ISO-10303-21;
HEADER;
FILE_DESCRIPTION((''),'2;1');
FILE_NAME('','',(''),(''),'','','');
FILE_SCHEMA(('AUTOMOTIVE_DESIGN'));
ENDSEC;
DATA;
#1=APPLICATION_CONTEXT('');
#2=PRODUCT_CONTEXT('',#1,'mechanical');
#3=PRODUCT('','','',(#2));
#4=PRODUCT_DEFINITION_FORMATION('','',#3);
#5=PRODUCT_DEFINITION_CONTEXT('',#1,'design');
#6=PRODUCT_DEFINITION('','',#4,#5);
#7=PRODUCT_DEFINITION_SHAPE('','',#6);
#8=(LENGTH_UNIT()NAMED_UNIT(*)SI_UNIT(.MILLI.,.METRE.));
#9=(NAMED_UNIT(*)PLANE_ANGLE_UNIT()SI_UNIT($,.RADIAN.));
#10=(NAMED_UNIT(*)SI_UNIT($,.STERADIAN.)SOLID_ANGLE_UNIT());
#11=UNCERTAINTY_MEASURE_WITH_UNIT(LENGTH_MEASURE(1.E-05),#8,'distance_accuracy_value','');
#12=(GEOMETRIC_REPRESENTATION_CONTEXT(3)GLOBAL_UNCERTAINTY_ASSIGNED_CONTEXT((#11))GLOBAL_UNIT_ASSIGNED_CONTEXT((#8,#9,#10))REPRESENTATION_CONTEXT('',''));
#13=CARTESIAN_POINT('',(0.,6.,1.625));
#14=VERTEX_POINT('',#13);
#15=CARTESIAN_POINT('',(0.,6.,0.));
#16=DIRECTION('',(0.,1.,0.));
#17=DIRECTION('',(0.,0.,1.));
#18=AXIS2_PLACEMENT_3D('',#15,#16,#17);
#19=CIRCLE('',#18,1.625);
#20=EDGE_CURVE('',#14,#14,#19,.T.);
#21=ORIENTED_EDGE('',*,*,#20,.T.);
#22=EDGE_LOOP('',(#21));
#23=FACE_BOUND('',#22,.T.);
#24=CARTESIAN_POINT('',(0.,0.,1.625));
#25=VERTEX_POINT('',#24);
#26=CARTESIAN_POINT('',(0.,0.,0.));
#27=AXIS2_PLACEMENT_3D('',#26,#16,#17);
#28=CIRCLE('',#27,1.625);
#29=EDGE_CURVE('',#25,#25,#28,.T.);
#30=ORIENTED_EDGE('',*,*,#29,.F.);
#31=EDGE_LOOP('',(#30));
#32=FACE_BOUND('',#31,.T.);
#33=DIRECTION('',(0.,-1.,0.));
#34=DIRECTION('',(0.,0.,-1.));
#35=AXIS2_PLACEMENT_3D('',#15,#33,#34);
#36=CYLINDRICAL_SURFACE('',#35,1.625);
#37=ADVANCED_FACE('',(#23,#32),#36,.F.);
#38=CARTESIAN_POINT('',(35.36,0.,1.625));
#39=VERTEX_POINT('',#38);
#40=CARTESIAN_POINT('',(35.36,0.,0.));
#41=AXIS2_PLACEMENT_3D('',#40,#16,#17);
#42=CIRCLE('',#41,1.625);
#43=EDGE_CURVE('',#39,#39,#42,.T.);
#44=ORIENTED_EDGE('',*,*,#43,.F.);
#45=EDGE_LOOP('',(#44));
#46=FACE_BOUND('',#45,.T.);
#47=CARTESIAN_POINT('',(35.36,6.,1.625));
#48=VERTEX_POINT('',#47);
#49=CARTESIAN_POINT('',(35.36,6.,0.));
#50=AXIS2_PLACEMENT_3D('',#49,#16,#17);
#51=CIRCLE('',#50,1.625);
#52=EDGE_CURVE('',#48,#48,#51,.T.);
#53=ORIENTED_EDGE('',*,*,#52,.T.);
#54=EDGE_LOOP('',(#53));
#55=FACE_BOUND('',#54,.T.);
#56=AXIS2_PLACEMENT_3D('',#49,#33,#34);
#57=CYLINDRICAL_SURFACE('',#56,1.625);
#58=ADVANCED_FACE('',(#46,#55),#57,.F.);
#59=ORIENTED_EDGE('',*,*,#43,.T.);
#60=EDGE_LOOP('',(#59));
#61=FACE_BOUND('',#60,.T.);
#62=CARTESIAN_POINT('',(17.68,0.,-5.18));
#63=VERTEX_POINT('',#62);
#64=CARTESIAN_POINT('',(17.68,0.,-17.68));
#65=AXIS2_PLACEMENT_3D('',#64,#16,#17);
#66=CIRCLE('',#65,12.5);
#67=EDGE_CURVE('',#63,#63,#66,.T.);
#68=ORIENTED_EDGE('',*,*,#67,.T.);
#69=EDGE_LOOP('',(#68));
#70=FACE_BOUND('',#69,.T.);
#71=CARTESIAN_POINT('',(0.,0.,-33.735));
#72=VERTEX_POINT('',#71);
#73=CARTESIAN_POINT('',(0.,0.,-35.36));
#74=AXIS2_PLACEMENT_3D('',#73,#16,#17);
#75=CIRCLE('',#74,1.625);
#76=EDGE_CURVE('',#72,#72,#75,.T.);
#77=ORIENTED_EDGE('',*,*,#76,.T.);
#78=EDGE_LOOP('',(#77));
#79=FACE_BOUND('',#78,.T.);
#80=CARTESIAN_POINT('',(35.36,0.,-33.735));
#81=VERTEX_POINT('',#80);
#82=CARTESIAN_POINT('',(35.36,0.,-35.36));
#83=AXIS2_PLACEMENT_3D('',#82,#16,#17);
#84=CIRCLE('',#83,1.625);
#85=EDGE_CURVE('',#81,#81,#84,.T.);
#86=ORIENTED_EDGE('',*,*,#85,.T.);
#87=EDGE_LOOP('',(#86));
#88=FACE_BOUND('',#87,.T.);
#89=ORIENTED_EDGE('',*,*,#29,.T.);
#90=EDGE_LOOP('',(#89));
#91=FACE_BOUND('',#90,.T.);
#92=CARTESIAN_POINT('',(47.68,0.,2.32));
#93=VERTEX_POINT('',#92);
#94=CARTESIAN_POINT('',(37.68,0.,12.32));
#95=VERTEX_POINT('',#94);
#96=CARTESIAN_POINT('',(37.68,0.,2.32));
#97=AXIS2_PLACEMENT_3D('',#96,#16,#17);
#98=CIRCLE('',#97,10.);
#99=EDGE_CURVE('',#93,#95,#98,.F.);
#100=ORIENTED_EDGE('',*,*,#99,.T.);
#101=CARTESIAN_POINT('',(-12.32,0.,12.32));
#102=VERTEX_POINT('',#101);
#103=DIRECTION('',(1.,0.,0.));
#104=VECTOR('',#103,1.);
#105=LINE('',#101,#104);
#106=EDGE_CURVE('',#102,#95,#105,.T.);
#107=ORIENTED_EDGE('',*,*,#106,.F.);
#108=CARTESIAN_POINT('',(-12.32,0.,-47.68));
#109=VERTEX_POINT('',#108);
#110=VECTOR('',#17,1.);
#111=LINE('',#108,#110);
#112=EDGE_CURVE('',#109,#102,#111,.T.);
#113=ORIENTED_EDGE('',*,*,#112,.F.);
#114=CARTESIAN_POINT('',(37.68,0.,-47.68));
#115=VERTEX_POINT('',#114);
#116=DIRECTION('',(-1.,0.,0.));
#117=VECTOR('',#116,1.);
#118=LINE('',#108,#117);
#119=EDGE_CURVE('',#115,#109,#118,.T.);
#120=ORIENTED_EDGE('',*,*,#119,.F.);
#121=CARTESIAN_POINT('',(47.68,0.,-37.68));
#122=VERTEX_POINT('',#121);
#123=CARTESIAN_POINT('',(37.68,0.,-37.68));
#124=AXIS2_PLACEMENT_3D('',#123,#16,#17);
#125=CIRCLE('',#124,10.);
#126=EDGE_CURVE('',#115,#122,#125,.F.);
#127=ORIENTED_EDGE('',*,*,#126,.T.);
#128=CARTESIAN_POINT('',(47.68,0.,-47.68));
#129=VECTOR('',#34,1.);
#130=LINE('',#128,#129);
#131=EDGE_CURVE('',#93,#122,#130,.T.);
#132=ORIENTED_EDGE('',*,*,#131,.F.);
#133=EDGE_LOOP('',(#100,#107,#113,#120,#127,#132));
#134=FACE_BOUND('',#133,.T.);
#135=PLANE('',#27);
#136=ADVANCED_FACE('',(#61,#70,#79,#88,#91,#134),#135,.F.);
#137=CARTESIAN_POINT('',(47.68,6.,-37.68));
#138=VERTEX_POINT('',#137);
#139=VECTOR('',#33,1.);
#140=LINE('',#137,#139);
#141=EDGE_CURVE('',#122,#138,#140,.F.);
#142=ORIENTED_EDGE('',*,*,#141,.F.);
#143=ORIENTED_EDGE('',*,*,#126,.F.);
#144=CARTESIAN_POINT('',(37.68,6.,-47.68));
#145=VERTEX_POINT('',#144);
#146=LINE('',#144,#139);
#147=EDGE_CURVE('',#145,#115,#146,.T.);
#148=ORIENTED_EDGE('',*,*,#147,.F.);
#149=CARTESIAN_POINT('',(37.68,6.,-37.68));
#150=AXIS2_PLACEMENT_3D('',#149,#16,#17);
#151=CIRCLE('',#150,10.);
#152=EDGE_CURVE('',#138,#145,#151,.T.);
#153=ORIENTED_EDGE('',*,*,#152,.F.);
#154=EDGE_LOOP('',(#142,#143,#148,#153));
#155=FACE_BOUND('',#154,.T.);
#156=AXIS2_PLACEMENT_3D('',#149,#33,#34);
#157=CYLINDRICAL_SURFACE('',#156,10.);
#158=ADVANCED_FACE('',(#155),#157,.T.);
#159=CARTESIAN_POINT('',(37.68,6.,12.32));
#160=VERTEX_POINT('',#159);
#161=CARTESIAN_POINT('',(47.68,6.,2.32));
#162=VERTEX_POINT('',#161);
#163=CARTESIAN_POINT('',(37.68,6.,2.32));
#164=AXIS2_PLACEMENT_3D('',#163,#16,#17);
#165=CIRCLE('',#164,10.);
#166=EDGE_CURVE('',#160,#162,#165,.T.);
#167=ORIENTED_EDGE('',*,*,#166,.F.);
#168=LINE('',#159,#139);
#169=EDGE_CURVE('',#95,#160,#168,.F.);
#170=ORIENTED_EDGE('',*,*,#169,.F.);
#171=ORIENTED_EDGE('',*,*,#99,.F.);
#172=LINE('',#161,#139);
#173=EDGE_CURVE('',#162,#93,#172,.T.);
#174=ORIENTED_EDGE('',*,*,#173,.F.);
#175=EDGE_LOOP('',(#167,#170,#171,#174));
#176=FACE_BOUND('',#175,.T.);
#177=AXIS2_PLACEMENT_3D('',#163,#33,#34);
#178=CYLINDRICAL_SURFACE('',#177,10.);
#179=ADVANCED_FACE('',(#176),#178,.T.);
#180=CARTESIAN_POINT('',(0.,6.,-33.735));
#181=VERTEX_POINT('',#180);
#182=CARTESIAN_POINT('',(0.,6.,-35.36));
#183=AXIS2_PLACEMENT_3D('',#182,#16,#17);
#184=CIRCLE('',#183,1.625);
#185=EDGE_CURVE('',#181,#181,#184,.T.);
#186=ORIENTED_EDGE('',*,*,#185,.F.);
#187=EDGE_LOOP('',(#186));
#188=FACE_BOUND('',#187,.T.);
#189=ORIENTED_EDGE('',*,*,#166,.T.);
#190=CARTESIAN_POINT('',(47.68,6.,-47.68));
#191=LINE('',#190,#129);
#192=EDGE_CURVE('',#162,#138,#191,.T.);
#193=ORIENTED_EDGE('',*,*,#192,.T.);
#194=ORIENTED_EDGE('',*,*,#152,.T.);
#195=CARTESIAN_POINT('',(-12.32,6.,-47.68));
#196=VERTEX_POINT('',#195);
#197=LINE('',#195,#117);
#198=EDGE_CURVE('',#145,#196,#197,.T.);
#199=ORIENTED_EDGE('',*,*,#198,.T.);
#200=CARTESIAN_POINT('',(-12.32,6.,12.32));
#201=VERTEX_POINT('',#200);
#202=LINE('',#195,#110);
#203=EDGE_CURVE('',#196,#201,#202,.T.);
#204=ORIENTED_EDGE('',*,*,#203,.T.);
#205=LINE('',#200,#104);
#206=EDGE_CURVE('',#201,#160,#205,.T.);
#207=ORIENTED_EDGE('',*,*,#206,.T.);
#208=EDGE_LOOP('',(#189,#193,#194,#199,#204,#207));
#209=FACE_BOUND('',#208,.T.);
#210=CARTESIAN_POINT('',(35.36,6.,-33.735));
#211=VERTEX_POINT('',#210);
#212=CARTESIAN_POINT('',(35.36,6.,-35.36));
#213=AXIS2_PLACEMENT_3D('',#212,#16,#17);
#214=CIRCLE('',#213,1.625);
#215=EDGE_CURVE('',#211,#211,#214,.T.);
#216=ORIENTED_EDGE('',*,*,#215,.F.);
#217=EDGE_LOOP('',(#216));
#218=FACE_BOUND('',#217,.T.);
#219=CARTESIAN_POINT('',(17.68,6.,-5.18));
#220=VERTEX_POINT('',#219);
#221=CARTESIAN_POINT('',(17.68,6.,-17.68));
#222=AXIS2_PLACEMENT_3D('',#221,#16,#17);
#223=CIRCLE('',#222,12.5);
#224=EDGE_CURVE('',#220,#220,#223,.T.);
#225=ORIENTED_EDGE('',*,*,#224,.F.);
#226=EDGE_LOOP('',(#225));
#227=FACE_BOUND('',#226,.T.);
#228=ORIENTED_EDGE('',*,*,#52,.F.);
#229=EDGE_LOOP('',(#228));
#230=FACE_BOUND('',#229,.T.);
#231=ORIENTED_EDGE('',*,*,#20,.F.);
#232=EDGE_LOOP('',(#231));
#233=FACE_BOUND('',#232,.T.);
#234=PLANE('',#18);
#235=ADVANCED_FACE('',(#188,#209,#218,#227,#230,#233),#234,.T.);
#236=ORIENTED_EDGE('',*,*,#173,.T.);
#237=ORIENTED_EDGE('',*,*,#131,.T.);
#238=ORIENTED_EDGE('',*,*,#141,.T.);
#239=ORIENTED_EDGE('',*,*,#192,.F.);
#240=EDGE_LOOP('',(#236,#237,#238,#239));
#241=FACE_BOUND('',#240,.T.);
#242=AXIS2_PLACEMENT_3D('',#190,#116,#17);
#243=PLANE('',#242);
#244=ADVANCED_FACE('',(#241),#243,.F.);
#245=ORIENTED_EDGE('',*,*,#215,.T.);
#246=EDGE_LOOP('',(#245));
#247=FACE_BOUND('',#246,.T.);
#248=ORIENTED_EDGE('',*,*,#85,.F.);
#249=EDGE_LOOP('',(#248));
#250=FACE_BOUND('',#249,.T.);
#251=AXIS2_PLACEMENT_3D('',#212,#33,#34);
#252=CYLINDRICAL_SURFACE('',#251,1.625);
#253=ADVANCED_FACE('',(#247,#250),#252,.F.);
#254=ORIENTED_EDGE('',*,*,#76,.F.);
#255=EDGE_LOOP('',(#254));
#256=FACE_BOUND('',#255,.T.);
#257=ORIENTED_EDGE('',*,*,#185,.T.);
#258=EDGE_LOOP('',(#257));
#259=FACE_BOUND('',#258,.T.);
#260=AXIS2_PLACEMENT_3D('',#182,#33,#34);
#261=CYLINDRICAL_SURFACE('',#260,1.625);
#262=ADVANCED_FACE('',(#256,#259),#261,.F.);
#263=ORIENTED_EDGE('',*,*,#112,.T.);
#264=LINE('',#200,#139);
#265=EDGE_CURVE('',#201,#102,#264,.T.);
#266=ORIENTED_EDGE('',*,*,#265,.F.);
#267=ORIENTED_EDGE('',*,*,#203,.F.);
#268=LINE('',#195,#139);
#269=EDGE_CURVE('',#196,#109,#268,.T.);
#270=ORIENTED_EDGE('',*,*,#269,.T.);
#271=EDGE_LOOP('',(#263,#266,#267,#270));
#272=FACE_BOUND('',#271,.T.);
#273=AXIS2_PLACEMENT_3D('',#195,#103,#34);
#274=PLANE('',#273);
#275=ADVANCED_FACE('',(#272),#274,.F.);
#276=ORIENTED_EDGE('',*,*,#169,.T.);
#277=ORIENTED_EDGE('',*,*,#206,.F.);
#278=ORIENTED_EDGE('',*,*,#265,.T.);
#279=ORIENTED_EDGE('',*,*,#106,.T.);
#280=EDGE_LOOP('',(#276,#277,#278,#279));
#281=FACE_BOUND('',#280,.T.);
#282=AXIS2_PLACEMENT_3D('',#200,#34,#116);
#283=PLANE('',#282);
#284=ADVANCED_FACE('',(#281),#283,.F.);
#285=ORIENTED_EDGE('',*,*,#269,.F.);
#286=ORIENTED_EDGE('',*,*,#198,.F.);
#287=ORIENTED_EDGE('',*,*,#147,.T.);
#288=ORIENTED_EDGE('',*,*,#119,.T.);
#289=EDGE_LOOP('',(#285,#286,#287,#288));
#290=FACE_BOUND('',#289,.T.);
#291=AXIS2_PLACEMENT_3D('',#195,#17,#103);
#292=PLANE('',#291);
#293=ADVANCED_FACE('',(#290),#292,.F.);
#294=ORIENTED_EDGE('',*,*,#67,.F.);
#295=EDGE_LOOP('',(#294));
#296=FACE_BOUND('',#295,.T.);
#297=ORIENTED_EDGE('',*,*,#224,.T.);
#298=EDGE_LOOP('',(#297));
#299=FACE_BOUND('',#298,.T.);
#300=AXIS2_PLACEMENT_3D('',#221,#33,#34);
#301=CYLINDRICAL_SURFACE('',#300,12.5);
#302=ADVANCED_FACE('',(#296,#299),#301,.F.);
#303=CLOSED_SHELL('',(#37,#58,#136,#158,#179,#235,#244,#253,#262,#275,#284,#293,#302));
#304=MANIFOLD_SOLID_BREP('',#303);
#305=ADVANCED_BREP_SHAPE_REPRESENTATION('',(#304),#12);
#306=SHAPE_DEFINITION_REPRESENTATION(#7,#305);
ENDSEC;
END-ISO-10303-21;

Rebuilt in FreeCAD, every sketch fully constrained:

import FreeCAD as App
import Part
import Sketcher
Q = App.Units.Quantity


def edges_at(feature, points):
    """Names of the edges that pass closest to the given points."""
    edges = feature.Shape.Edges
    near = lambda p: min(range(len(edges)), key=lambda i: edges[i].distToShape(Part.Vertex(*p))[0])
    return sorted({f"Edge{near(p) + 1}" for p in points})

doc = App.newDocument("Part")
body = doc.addObject("PartDesign::Body", "Body")

# Sketch on XZ plane
sketch1 = body.newObject("Sketcher::SketchObject", "Sketch")
sketch1.AttachmentSupport = (doc.getObject("XZ_Plane"), [""])
sketch1.MapMode = "FlatFace"
sketch1.addGeometry([
    Part.LineSegment(App.Vector(-12.32, -47.68, 0), App.Vector(-12.32, 12.32, 0)),  # 0
    Part.LineSegment(App.Vector(-12.32, 12.32, 0), App.Vector(47.68, 12.32, 0)),  # 1
    Part.LineSegment(App.Vector(47.68, 12.32, 0), App.Vector(47.68, -47.68, 0)),  # 2
    Part.LineSegment(App.Vector(47.68, -47.68, 0), App.Vector(-12.32, -47.68, 0)),  # 3
    Part.Circle(App.Vector(0, 0, 0), App.Vector(0, 0, 1), 1.625),  # 4
    Part.Circle(App.Vector(35.36, 0, 0), App.Vector(0, 0, 1), 1.625),  # 5
    Part.Circle(App.Vector(0, -35.36, 0), App.Vector(0, 0, 1), 1.625),  # 6
    Part.Circle(App.Vector(17.68, -17.68, 0), App.Vector(0, 0, 1), 12.5),  # 7
    Part.Circle(App.Vector(35.36, -35.36, 0), App.Vector(0, 0, 1), 1.625),  # 8
], False)
sketch1.addConstraint([
    Sketcher.Constraint("Coincident", 0, 2, 1, 1),
    Sketcher.Constraint("Coincident", 1, 2, 2, 1),
    Sketcher.Constraint("Coincident", 2, 2, 3, 1),
    Sketcher.Constraint("Coincident", 3, 2, 0, 1),
    Sketcher.Constraint("Vertical", 0),
    Sketcher.Constraint("Horizontal", 1),
    Sketcher.Constraint("Vertical", 2),
    Sketcher.Constraint("Horizontal", 3),
    Sketcher.Constraint("Coincident", 4, 3, -1, 1),
    Sketcher.Constraint("Equal", 4, 5),
    Sketcher.Constraint("Equal", 5, 6),
    Sketcher.Constraint("Equal", 6, 8),
    Sketcher.Constraint("PointOnObject", 5, 3, -1),
    Sketcher.Constraint("PointOnObject", 6, 3, -2),
    Sketcher.Constraint("Horizontal", 6, 3, 8, 3),
    Sketcher.Constraint("Vertical", 5, 3, 8, 3),
    Sketcher.Constraint("Equal", 3, 0),
    Sketcher.Constraint("Diameter", 7, Q("25 mm")),
    Sketcher.Constraint("Diameter", 4, Q("3.25 mm")),
    Sketcher.Constraint("DistanceX", 1, 1, 1, 2, Q("60 mm")),
    Sketcher.Constraint("DistanceX", 0, 2, 7, 3, Q("30 mm")),
    Sketcher.Constraint("DistanceY", 7, 3, 0, 2, Q("30 mm")),
    Sketcher.Constraint("DistanceX", -1, 1, 5, 3, Q("35.36 mm")),
    Sketcher.Constraint("DistanceY", 6, 3, -1, 1, Q("35.36 mm")),
    Sketcher.Constraint("DistanceX", -1, 1, 7, 3, Q("17.68 mm")),
    Sketcher.Constraint("DistanceY", 7, 3, -1, 1, Q("17.68 mm")),
])
pad1 = body.newObject("PartDesign::Pad", "Pad")
pad1.Profile = sketch1
pad1.Length = 6
pad1.Reversed = True
doc.recompute()

fillet = body.newObject("PartDesign::Fillet", "Fillet")
fillet.Base = (pad1, edges_at(pad1, [(47.68, 3, -47.68), (47.68, 3, 12.32)]))
fillet.Radius = 10

doc.recompute()
